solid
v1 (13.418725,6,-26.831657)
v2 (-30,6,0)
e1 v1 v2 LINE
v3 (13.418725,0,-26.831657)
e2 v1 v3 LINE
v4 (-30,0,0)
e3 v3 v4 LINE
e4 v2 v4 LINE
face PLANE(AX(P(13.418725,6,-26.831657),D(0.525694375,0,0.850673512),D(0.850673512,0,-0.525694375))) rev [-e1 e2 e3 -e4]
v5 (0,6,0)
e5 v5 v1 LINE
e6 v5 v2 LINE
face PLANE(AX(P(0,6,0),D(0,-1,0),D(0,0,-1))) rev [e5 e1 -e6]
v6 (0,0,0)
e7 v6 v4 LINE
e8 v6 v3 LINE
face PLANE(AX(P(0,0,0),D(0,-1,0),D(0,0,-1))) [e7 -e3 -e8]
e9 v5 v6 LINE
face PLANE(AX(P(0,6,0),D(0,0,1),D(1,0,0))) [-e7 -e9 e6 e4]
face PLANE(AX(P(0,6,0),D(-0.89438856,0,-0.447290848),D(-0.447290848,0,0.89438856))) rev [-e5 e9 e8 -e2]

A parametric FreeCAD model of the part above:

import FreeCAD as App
import Part
import Sketcher
from FreeCAD import Vector
Q = App.Units.Quantity


def add_polygon(sketch, points):
    """Adds a closed chain of lines whose ends are joined by coincident constraints."""
    first, n = sketch.GeometryCount, len(points)
    for a, b in zip(points, points[1:] + points[:1]):
        sketch.addGeometry(Part.LineSegment(App.Vector(*a, 0), App.Vector(*b, 0)), False)
    for i in range(n):
        sketch.addConstraint(Sketcher.Constraint("Coincident", first + i, 2, first + (i + 1) % n, 1))

doc = App.newDocument("Part")
body = doc.addObject("PartDesign::Body", "Body")

# Sketch on XZ plane
sketch1 = doc.addObject("Sketcher::SketchObject", "Sketch")
body.addObject(sketch1)
sketch1.AttachmentSupport = (doc.XZ_Plane, [""])
sketch1.MapMode = "FlatFace"
add_polygon(sketch1, [(-30, 0), (0, 0), (13, -27)])  # lines 0-2
sketch1.addConstraint(Sketcher.Constraint("Horizontal", 0))
sketch1.addConstraint(Sketcher.Constraint("Coincident", 0, 2, -1, 1))
sketch1.addConstraint(Sketcher.Constraint("DistanceX", 0, 1, 0, 2, 30.0))
sketch1.addConstraint(Sketcher.Constraint("Distance", 1, 30.0))
sketch1.addConstraint(Sketcher.Constraint("Angle", 1, Q("-63.43 deg")))
pad1 = doc.addObject("PartDesign::Pad", "Pad")
body.addObject(pad1)
pad1.Profile = sketch1
pad1.Length = 6
pad1.Reversed = True

doc.recompute()
